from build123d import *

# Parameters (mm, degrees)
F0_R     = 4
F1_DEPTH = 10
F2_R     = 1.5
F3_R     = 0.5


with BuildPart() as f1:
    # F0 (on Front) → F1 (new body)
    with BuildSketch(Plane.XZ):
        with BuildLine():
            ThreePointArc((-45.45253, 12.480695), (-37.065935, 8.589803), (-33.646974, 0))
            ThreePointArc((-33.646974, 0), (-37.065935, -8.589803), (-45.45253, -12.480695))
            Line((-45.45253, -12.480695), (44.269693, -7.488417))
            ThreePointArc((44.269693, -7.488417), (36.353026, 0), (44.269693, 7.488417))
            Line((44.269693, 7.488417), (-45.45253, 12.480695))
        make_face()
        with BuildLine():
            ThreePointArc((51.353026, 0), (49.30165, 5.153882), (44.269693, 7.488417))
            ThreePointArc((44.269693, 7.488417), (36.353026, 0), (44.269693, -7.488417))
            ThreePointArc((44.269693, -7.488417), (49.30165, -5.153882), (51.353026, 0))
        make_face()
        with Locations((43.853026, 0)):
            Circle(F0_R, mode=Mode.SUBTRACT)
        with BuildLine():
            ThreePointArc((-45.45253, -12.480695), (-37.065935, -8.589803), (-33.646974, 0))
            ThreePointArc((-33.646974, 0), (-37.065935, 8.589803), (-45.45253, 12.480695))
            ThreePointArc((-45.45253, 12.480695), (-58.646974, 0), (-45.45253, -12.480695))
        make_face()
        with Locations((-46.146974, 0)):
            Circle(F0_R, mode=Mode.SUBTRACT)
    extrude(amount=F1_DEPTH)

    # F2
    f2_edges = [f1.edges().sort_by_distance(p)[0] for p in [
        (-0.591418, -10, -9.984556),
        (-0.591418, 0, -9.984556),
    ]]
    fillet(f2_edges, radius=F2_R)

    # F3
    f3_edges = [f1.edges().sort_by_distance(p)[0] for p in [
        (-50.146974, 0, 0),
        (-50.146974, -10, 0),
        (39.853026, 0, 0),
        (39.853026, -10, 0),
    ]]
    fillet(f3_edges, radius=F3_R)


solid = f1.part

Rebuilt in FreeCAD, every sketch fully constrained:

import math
import FreeCAD as App
import Part
import Sketcher


def edges_at(feature, points):
    """Names of the edges that pass closest to the given points."""
    edges = feature.Shape.Edges
    near = lambda p: min(range(len(edges)), key=lambda i: edges[i].distToShape(Part.Vertex(*p))[0])
    return sorted({f"Edge{near(p) + 1}" for p in points})

doc = App.newDocument("Part")
body = doc.addObject("PartDesign::Body", "Body")

# Sketch on XZ plane
sketch1 = body.newObject("Sketcher::SketchObject", "Sketch")
sketch1.AttachmentSupport = (doc.getObject("XZ_Plane"), [""])
sketch1.MapMode = "FlatFace"
sketch1.addGeometry([
    Part.LineSegment(App.Vector(44.3, 7.5, 0), App.Vector(-45.5, 12.5, 0)),  # 0
    Part.ArcOfCircle(Part.Circle(App.Vector(-46.1, 0, 0), App.Vector(0, 0, 1), 12.5), math.radians(87), math.radians(273)),  # 1
    Part.LineSegment(App.Vector(-45.5, -12.5, 0), App.Vector(44.3, -7.5, 0)),  # 2
    Part.ArcOfCircle(Part.Circle(App.Vector(43.9, 0, 0), App.Vector(0, 0, 1), 7.5), math.radians(-87), math.radians(0)),  # 3
    Part.ArcOfCircle(Part.Circle(App.Vector(43.9, 0, 0), App.Vector(0, 0, 1), 7.5), math.radians(0), math.radians(87)),  # 4
    Part.Circle(App.Vector(-46.1, 0, 0), App.Vector(0, 0, 1), 4),  # 5
    Part.Circle(App.Vector(43.9, 0, 0), App.Vector(0, 0, 1), 4),  # 6
], False)
sketch1.addConstraint([
    Sketcher.Constraint("Tangent", 0, 2, 1, 1),
    Sketcher.Constraint("Tangent", 1, 2, 2, 1),
    Sketcher.Constraint("Tangent", 2, 2, 3, 1),
    Sketcher.Constraint("Tangent", 3, 2, 4, 1),
    Sketcher.Constraint("Tangent", 4, 2, 0, 1),
    Sketcher.Constraint("Coincident", 5, 3, 1, 3),
    Sketcher.Constraint("Coincident", 6, 3, 3, 3),
    Sketcher.Constraint("Equal", 3, 4),
    Sketcher.Constraint("Equal", 5, 6),
    Sketcher.Constraint("Symmetric", 0, 2, 1, 2, -1),
    Sketcher.Constraint("PointOnObject", 3, 2, -1),
    Sketcher.Constraint("Diameter", 5, 8.0),
    Sketcher.Constraint("Radius", 1, 12.5),
    Sketcher.Constraint("Radius", 3, 7.5),
    Sketcher.Constraint("DistanceX", 1, 3, 3, 3, 90.0),
    Sketcher.Constraint("DistanceX", 0, 2, -1, 1, 45.45253),
])
pad1 = body.newObject("PartDesign::Pad", "Pad")
pad1.Profile = sketch1
pad1.Length = 10
doc.recompute()

fillet = body.newObject("PartDesign::Fillet", "Fillet")
fillet.Base = (pad1, edges_at(pad1, [(-0.591, -10, -9.985), (-0.591, 0, -9.985)]))
fillet.Radius = 1.5
doc.recompute()

fillet2 = body.newObject("PartDesign::Fillet", "Fillet001")
fillet2.Base = (fillet, edges_at(fillet, [
    (-50.147, 0, 0),
    (-50.147, -10, 0),
    (39.853, 0, 0),
    (39.853, -10, 0),
]))
fillet2.Radius = 0.5

doc.recompute()
